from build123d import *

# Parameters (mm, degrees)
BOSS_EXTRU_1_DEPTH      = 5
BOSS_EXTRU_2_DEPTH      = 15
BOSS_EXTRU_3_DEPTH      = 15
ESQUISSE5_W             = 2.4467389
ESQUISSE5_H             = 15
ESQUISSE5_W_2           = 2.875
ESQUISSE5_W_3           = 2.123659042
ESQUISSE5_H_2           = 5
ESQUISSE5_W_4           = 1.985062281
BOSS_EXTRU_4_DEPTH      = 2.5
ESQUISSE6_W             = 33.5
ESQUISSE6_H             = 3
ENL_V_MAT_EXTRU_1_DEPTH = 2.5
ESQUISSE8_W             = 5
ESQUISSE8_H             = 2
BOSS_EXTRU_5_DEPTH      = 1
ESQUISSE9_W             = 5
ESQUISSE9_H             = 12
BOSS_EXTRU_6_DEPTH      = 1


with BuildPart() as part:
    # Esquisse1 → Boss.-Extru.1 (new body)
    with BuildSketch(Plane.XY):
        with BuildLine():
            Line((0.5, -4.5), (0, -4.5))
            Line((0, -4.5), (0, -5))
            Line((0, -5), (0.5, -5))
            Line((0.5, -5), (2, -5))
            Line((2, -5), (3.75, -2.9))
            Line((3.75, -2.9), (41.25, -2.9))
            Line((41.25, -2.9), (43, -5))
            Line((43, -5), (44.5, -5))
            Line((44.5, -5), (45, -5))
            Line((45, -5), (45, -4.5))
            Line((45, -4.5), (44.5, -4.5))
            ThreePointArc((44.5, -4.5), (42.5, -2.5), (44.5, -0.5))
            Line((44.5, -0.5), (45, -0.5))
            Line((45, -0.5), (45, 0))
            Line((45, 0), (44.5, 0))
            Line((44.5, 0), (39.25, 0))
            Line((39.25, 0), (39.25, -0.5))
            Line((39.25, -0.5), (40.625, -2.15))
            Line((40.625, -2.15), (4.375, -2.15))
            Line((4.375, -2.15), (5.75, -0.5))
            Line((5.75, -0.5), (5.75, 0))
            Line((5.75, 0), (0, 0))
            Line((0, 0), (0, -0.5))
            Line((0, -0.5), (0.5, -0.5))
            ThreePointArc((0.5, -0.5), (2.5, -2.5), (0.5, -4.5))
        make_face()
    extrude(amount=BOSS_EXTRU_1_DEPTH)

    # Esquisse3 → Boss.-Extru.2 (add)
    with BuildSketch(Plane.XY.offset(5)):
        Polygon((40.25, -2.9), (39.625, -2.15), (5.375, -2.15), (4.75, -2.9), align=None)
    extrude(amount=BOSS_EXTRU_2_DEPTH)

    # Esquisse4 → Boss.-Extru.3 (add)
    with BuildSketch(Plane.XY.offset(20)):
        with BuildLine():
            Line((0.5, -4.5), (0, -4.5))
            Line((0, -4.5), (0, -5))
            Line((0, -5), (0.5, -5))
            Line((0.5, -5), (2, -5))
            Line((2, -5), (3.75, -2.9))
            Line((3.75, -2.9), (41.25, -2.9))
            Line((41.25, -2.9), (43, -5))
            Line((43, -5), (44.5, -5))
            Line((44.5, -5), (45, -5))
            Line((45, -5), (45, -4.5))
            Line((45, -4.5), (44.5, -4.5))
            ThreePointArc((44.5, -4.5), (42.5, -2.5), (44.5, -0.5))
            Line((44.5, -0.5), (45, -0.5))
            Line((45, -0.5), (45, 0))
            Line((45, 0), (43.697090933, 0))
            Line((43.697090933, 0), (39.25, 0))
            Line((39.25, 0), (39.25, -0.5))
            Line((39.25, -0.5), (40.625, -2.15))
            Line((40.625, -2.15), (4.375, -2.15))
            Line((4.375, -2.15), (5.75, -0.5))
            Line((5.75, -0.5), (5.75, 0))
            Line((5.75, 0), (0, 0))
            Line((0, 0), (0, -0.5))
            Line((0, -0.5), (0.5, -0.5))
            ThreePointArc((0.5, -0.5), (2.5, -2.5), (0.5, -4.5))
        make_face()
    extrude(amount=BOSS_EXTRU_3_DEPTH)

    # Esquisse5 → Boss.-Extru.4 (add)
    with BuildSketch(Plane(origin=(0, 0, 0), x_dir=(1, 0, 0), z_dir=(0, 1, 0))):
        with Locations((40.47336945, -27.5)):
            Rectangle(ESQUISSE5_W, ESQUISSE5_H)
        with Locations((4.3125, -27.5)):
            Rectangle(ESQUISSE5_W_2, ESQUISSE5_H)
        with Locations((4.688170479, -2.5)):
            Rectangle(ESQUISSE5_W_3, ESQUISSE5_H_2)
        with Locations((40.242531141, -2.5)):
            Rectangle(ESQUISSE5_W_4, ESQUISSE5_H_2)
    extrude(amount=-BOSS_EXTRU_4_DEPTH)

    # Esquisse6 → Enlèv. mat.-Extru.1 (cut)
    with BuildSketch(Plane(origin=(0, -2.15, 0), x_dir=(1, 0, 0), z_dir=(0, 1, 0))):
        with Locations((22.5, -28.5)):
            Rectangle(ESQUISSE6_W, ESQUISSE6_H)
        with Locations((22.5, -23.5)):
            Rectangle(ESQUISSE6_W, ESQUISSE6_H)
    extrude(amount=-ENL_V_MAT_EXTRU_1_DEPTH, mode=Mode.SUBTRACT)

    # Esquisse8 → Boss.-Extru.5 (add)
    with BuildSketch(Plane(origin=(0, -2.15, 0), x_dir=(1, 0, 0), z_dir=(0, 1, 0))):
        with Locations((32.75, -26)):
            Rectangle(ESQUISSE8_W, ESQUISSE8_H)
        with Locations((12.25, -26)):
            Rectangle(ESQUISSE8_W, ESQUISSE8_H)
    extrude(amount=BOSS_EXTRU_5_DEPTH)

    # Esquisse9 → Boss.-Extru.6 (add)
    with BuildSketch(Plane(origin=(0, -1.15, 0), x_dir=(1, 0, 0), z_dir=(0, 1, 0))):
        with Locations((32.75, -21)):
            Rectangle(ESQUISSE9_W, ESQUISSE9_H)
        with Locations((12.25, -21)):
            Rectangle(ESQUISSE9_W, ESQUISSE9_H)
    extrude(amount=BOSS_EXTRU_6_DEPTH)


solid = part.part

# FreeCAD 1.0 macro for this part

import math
import FreeCAD as App
import Part
import Sketcher

V = App.Vector
Q = App.Units.Quantity

doc = App.newDocument("Part")
body = doc.addObject("PartDesign::Body", "Body")

# Sketch on XY plane
sketch1 = body.newObject("Sketcher::SketchObject", "Sketch")
sketch1.AttachmentSupport = (doc.getObject("XY_Plane"), [""])
sketch1.MapMode = "FlatFace"
sketch1.addGeometry([
    Part.LineSegment(V(0.5, -4.5, 0), V(0, -4.5, 0)),  # 0
    Part.LineSegment(V(0, -4.5, 0), V(0, -5, 0)),  # 1
    Part.LineSegment(V(0, -5, 0), V(2, -5, 0)),  # 2
    Part.LineSegment(V(2, -5, 0), V(3.8, -2.9, 0)),  # 3
    Part.LineSegment(V(3.8, -2.9, 0), V(41.2, -2.9, 0)),  # 4
    Part.LineSegment(V(41.2, -2.9, 0), V(43, -5, 0)),  # 5
    Part.LineSegment(V(43, -5, 0), V(45, -5, 0)),  # 6
    Part.LineSegment(V(45, -5, 0), V(45, -4.5, 0)),  # 7
    Part.LineSegment(V(45, -4.5, 0), V(44.5, -4.5, 0)),  # 8
    Part.ArcOfCircle(Part.Circle(V(44.5, -2.5, 0), V(0, 0, 1), 2), math.radians(90), math.radians(270)),  # 9
    Part.LineSegment(V(44.5, -0.5, 0), V(45, -0.5, 0)),  # 10
    Part.LineSegment(V(45, -0.5, 0), V(45, 0, 0)),  # 11
    Part.LineSegment(V(45, 0, 0), V(39.2, 0, 0)),  # 12
    Part.LineSegment(V(39.2, 0, 0), V(39.2, -0.5, 0)),  # 13
    Part.LineSegment(V(39.2, -0.5, 0), V(40.6, -2.1, 0)),  # 14
    Part.LineSegment(V(40.6, -2.1, 0), V(4.4, -2.1, 0)),  # 15
    Part.LineSegment(V(4.4, -2.1, 0), V(5.8, -0.5, 0)),  # 16
    Part.LineSegment(V(5.8, -0.5, 0), V(5.8, 0, 0)),  # 17
    Part.LineSegment(V(5.8, 0, 0), V(0, 0, 0)),  # 18
    Part.LineSegment(V(0, 0, 0), V(0, -0.5, 0)),  # 19
    Part.LineSegment(V(0, -0.5, 0), V(0.5, -0.5, 0)),  # 20
    Part.ArcOfCircle(Part.Circle(V(0.5, -2.5, 0), V(0, 0, 1), 2), math.radians(-90), math.radians(90)),  # 21
], False)
sketch1.addConstraint([
    Sketcher.Constraint("Coincident", 0, 2, 1, 1),
    Sketcher.Constraint("Coincident", 1, 2, 2, 1),
    Sketcher.Constraint("Coincident", 2, 2, 3, 1),
    Sketcher.Constraint("Coincident", 3, 2, 4, 1),
    Sketcher.Constraint("Coincident", 4, 2, 5, 1),
    Sketcher.Constraint("Coincident", 5, 2, 6, 1),
    Sketcher.Constraint("Coincident", 6, 2, 7, 1),
    Sketcher.Constraint("Coincident", 7, 2, 8, 1),
    Sketcher.Constraint("Tangent", 8, 2, 9, 2),
    Sketcher.Constraint("Tangent", 9, 1, 10, 1),
    Sketcher.Constraint("Coincident", 10, 2, 11, 1),
    Sketcher.Constraint("Coincident", 11, 2, 12, 1),
    Sketcher.Constraint("Coincident", 12, 2, 13, 1),
    Sketcher.Constraint("Coincident", 13, 2, 14, 1),
    Sketcher.Constraint("Coincident", 14, 2, 15, 1),
    Sketcher.Constraint("Coincident", 15, 2, 16, 1),
    Sketcher.Constraint("Coincident", 16, 2, 17, 1),
    Sketcher.Constraint("Coincident", 17, 2, 18, 1),
    Sketcher.Constraint("Coincident", 18, 2, 19, 1),
    Sketcher.Constraint("Coincident", 19, 2, 20, 1),
    Sketcher.Constraint("Tangent", 20, 2, 21, 2),
    Sketcher.Constraint("Tangent", 21, 1, 0, 1),
    Sketcher.Constraint("Horizontal", 0),
    Sketcher.Constraint("Vertical", 1),
    Sketcher.Constraint("Horizontal", 2),
    Sketcher.Constraint("Horizontal", 4),
    Sketcher.Constraint("Horizontal", 6),
    Sketcher.Constraint("Vertical", 7),
    Sketcher.Constraint("Horizontal", 8),
    Sketcher.Constraint("Horizontal", 10),
    Sketcher.Constraint("Vertical", 11),
    Sketcher.Constraint("Horizontal", 12),
    Sketcher.Constraint("Vertical", 13),
    Sketcher.Constraint("Horizontal", 15),
    Sketcher.Constraint("Vertical", 17),
    Sketcher.Constraint("Horizontal", 18),
    Sketcher.Constraint("Vertical", 19),
    Sketcher.Constraint("Horizontal", 20),
    Sketcher.Constraint("Coincident", 18, 2, -1, 1),
    Sketcher.Constraint("Equal", 9, 21),
    Sketcher.Constraint("PointOnObject", 0, 2, -2),
    Sketcher.Constraint("PointOnObject", 11, 2, -1),
    Sketcher.Constraint("Parallel", 5, 14),
    Sketcher.Constraint("Parallel", 3, 16),
    Sketcher.Constraint("Horizontal", 9, 3, 21, 3),
    Sketcher.Constraint("Horizontal", 2, 2, 5, 2),
    Sketcher.Constraint("Horizontal", 10, 2, 13, 2),
    Sketcher.Constraint("Horizontal", 13, 2, 16, 2),
    Sketcher.Constraint("Vertical", 7, 2, 10, 2),
    Sketcher.Constraint("Equal", 2, 6),
    Sketcher.Constraint("Equal", 0, 8),
    Sketcher.Constraint("Equal", 12, 18),
    Sketcher.Constraint("Equal", 20, 1),
    Sketcher.Constraint("Equal", 7, 11),
    Sketcher.Constraint("Equal", 3, 5),
    Sketcher.Constraint("Radius", 9, Q("2 mm")),
    Sketcher.Constraint("DistanceX", 2, 1, 2, 2, Q("2 mm")),
    Sketcher.Constraint("DistanceX", 0, 2, 0, 1, Q("0.5 mm")),
    Sketcher.Constraint("DistanceX", 4, 1, 4, 2, Q("37.5 mm")),
    Sketcher.Constraint("DistanceX", -1, 1, 5, 2, Q("43 mm")),
    Sketcher.Constraint("DistanceX", 12, 2, 4, 2, Q("2 mm")),
    Sketcher.Constraint("DistanceX", 15, 2, 15, 1, Q("36.25 mm")),
    Sketcher.Constraint("DistanceY", 3, 2, -1, 1, Q("2.9 mm")),
])
pad1 = body.newObject("PartDesign::Pad", "Pad")
pad1.Profile = sketch1
pad1.Length = 5

# Sketch on XY plane
sketch2 = body.newObject("Sketcher::SketchObject", "Sketch001")
sketch2.AttachmentSupport = (doc.getObject("XY_Plane"), [""])
sketch2.MapMode = "FlatFace"
sketch2.AttachmentOffset = App.Placement(V(0, 0, 5), App.Rotation())
sketch2.addGeometry([
    Part.LineSegment(V(40.2, -2.9, 0), V(39.6, -2.1, 0)),
    Part.LineSegment(V(39.6, -2.1, 0), V(5.4, -2.1, 0)),
    Part.LineSegment(V(5.4, -2.1, 0), V(4.8, -2.9, 0)),
    Part.LineSegment(V(4.8, -2.9, 0), V(40.2, -2.9, 0)),
], False)
sketch2.addConstraint([
    Sketcher.Constraint("Coincident", 0, 2, 1, 1),
    Sketcher.Constraint("Coincident", 1, 2, 2, 1),
    Sketcher.Constraint("Coincident", 2, 2, 3, 1),
    Sketcher.Constraint("Coincident", 3, 2, 0, 1),
    Sketcher.Constraint("Horizontal", 1),
    Sketcher.Constraint("Horizontal", 3),
    Sketcher.Constraint("Equal", 0, 2),
    Sketcher.Constraint("DistanceX", 3, 1, 3, 2, Q("35.5 mm")),
    Sketcher.Constraint("DistanceX", 1, 2, 1, 1, Q("34.25 mm")),
    Sketcher.Constraint("DistanceY", 2, 2, -1, 1, Q("2.9 mm")),
    Sketcher.Constraint("DistanceY", 0, 2, -1, 1, Q("2.15 mm")),
    Sketcher.Constraint("DistanceX", -1, 1, 2, 2, Q("4.75 mm")),
])
pad2 = body.newObject("PartDesign::Pad", "Pad001")
pad2.Profile = sketch2
pad2.Length = 15

# Sketch on XY plane
sketch3 = body.newObject("Sketcher::SketchObject", "Sketch002")
sketch3.AttachmentSupport = (doc.getObject("XY_Plane"), [""])
sketch3.MapMode = "FlatFace"
sketch3.AttachmentOffset = App.Placement(V(0, 0, 20), App.Rotation())
sketch3.addGeometry([
    Part.LineSegment(V(0.5, -4.5, 0), V(0, -4.5, 0)),  # 0
    Part.LineSegment(V(0, -4.5, 0), V(0, -5, 0)),  # 1
    Part.LineSegment(V(0, -5, 0), V(2, -5, 0)),  # 2
    Part.LineSegment(V(2, -5, 0), V(3.8, -2.9, 0)),  # 3
    Part.LineSegment(V(3.8, -2.9, 0), V(41.2, -2.9, 0)),  # 4
    Part.LineSegment(V(41.2, -2.9, 0), V(43, -5, 0)),  # 5
    Part.LineSegment(V(43, -5, 0), V(45, -5, 0)),  # 6
    Part.LineSegment(V(45, -5, 0), V(45, -4.5, 0)),  # 7
    Part.LineSegment(V(45, -4.5, 0), V(44.5, -4.5, 0)),  # 8
    Part.ArcOfCircle(Part.Circle(V(44.5, -2.5, 0), V(0, 0, 1), 2), math.radians(90), math.radians(270)),  # 9
    Part.LineSegment(V(44.5, -0.5, 0), V(45, -0.5, 0)),  # 10
    Part.LineSegment(V(45, -0.5, 0), V(45, 0, 0)),  # 11
    Part.LineSegment(V(45, 0, 0), V(39.2, 0, 0)),  # 12
    Part.LineSegment(V(39.2, 0, 0), V(39.2, -0.5, 0)),  # 13
    Part.LineSegment(V(39.2, -0.5, 0), V(40.6, -2.1, 0)),  # 14
    Part.LineSegment(V(40.6, -2.1, 0), V(4.4, -2.1, 0)),  # 15
    Part.LineSegment(V(4.4, -2.1, 0), V(5.8, -0.5, 0)),  # 16
    Part.LineSegment(V(5.8, -0.5, 0), V(5.8, 0, 0)),  # 17
    Part.LineSegment(V(5.8, 0, 0), V(0, 0, 0)),  # 18
    Part.LineSegment(V(0, 0, 0), V(0, -0.5, 0)),  # 19
    Part.LineSegment(V(0, -0.5, 0), V(0.5, -0.5, 0)),  # 20
    Part.ArcOfCircle(Part.Circle(V(0.5, -2.5, 0), V(0, 0, 1), 2), math.radians(-90), math.radians(90)),  # 21
], False)
sketch3.addConstraint([
    Sketcher.Constraint("Coincident", 0, 2, 1, 1),
    Sketcher.Constraint("Coincident", 1, 2, 2, 1),
    Sketcher.Constraint("Coincident", 2, 2, 3, 1),
    Sketcher.Constraint("Coincident", 3, 2, 4, 1),
    Sketcher.Constraint("Coincident", 4, 2, 5, 1),
    Sketcher.Constraint("Coincident", 5, 2, 6, 1),
    Sketcher.Constraint("Coincident", 6, 2, 7, 1),
    Sketcher.Constraint("Coincident", 7, 2, 8, 1),
    Sketcher.Constraint("Tangent", 8, 2, 9, 2),
    Sketcher.Constraint("Tangent", 9, 1, 10, 1),
    Sketcher.Constraint("Coincident", 10, 2, 11, 1),
    Sketcher.Constraint("Coincident", 11, 2, 12, 1),
    Sketcher.Constraint("Coincident", 12, 2, 13, 1),
    Sketcher.Constraint("Coincident", 13, 2, 14, 1),
    Sketcher.Constraint("Coincident", 14, 2, 15, 1),
    Sketcher.Constraint("Coincident", 15, 2, 16, 1),
    Sketcher.Constraint("Coincident", 16, 2, 17, 1),
    Sketcher.Constraint("Coincident", 17, 2, 18, 1),
    Sketcher.Constraint("Coincident", 18, 2, 19, 1),
    Sketcher.Constraint("Coincident", 19, 2, 20, 1),
    Sketcher.Constraint("Tangent", 20, 2, 21, 2),
    Sketcher.Constraint("Tangent", 21, 1, 0, 1),
    Sketcher.Constraint("Horizontal", 0),
    Sketcher.Constraint("Vertical", 1),
    Sketcher.Constraint("Horizontal", 2),
    Sketcher.Constraint("Horizontal", 4),
    Sketcher.Constraint("Horizontal", 6),
    Sketcher.Constraint("Vertical", 7),
    Sketcher.Constraint("Horizontal", 8),
    Sketcher.Constraint("Horizontal", 10),
    Sketcher.Constraint("Vertical", 11),
    Sketcher.Constraint("Horizontal", 12),
    Sketcher.Constraint("Vertical", 13),
    Sketcher.Constraint("Horizontal", 15),
    Sketcher.Constraint("Vertical", 17),
    Sketcher.Constraint("Horizontal", 18),
    Sketcher.Constraint("Vertical", 19),
    Sketcher.Constraint("Horizontal", 20),
    Sketcher.Constraint("Coincident", 18, 2, -1, 1),
    Sketcher.Constraint("Equal", 9, 21),
    Sketcher.Constraint("PointOnObject", 0, 2, -2),
    Sketcher.Constraint("PointOnObject", 11, 2, -1),
    Sketcher.Constraint("Parallel", 5, 14),
    Sketcher.Constraint("Parallel", 3, 16),
    Sketcher.Constraint("Horizontal", 9, 3, 21, 3),
    Sketcher.Constraint("Horizontal", 2, 2, 5, 2),
    Sketcher.Constraint("Horizontal", 10, 2, 13, 2),
    Sketcher.Constraint("Horizontal", 13, 2, 16, 2),
    Sketcher.Constraint("Vertical", 7, 2, 10, 2),
    Sketcher.Constraint("Equal", 2, 6),
    Sketcher.Constraint("Equal", 0, 8),
    Sketcher.Constraint("Equal", 12, 18),
    Sketcher.Constraint("Equal", 20, 1),
    Sketcher.Constraint("Equal", 7, 11),
    Sketcher.Constraint("Equal", 3, 5),
    Sketcher.Constraint("Radius", 9, Q("2 mm")),
    Sketcher.Constraint("DistanceX", 2, 1, 2, 2, Q("2 mm")),
    Sketcher.Constraint("DistanceX", 0, 2, 0, 1, Q("0.5 mm")),
    Sketcher.Constraint("DistanceX", 4, 1, 4, 2, Q("37.5 mm")),
    Sketcher.Constraint("DistanceX", -1, 1, 5, 2, Q("43 mm")),
    Sketcher.Constraint("DistanceX", 12, 2, 4, 2, Q("2 mm")),
    Sketcher.Constraint("DistanceX", 15, 2, 15, 1, Q("36.25 mm")),
    Sketcher.Constraint("DistanceY", 3, 2, -1, 1, Q("2.9 mm")),
])
pad3 = body.newObject("PartDesign::Pad", "Pad002")
pad3.Profile = sketch3
pad3.Length = 15

# Sketch on XZ plane
sketch4 = body.newObject("Sketcher::SketchObject", "Sketch003")
sketch4.AttachmentSupport = (doc.getObject("XZ_Plane"), [""])
sketch4.MapMode = "FlatFace"
sketch4.addGeometry([
    Part.LineSegment(V(39.2, 20, 0), V(39.2, 35, 0)),  # 0
    Part.LineSegment(V(39.2, 35, 0), V(41.7, 35, 0)),  # 1
    Part.LineSegment(V(41.7, 35, 0), V(41.7, 20, 0)),  # 2
    Part.LineSegment(V(41.7, 20, 0), V(39.2, 20, 0)),  # 3
    Part.LineSegment(V(2.9, 20, 0), V(2.9, 35, 0)),  # 4
    Part.LineSegment(V(2.9, 35, 0), V(5.8, 35, 0)),  # 5
    Part.LineSegment(V(5.8, 35, 0), V(5.8, 20, 0)),  # 6
    Part.LineSegment(V(5.8, 20, 0), V(2.9, 20, 0)),  # 7
    Part.LineSegment(V(3.6, 0, 0), V(3.6, 5, 0)),  # 8
    Part.LineSegment(V(3.6, 5, 0), V(5.8, 5, 0)),  # 9
    Part.LineSegment(V(5.8, 5, 0), V(5.8, 0, 0)),  # 10
    Part.LineSegment(V(5.8, 0, 0), V(3.6, 0, 0)),  # 11
    Part.LineSegment(V(39.3, 0, 0), V(39.3, 5, 0)),  # 12
    Part.LineSegment(V(39.3, 5, 0), V(41.2, 5, 0)),  # 13
    Part.LineSegment(V(41.2, 5, 0), V(41.2, 0, 0)),  # 14
    Part.LineSegment(V(41.2, 0, 0), V(39.3, 0, 0)),  # 15
], False)
sketch4.addConstraint([
    Sketcher.Constraint("Coincident", 0, 2, 1, 1),
    Sketcher.Constraint("Coincident", 1, 2, 2, 1),
    Sketcher.Constraint("Coincident", 2, 2, 3, 1),
    Sketcher.Constraint("Coincident", 3, 2, 0, 1),
    Sketcher.Constraint("Coincident", 4, 2, 5, 1),
    Sketcher.Constraint("Coincident", 5, 2, 6, 1),
    Sketcher.Constraint("Coincident", 6, 2, 7, 1),
    Sketcher.Constraint("Coincident", 7, 2, 4, 1),
    Sketcher.Constraint("Coincident", 8, 2, 9, 1),
    Sketcher.Constraint("Coincident", 9, 2, 10, 1),
    Sketcher.Constraint("Coincident", 10, 2, 11, 1),
    Sketcher.Constraint("Coincident", 11, 2, 8, 1),
    Sketcher.Constraint("Coincident", 12, 2, 13, 1),
    Sketcher.Constraint("Coincident", 13, 2, 14, 1),
    Sketcher.Constraint("Coincident", 14, 2, 15, 1),
    Sketcher.Constraint("Coincident", 15, 2, 12, 1),
    Sketcher.Constraint("Vertical", 0),
    Sketcher.Constraint("Horizontal", 1),
    Sketcher.Constraint("Vertical", 2),
    Sketcher.Constraint("Horizontal", 3),
    Sketcher.Constraint("Vertical", 4),
    Sketcher.Constraint("Horizontal", 5),
    Sketcher.Constraint("Vertical", 6),
    Sketcher.Constraint("Horizontal", 7),
    Sketcher.Constraint("Vertical", 8),
    Sketcher.Constraint("Horizontal", 9),
    Sketcher.Constraint("Vertical", 10),
    Sketcher.Constraint("Horizontal", 11),
    Sketcher.Constraint("Vertical", 12),
    Sketcher.Constraint("Horizontal", 13),
    Sketcher.Constraint("Vertical", 14),
    Sketcher.Constraint("Horizontal", 15),
    Sketcher.Constraint("PointOnObject", 10, 2, -1),
    Sketcher.Constraint("PointOnObject", 14, 2, -1),
    Sketcher.Constraint("Horizontal", 1, 2, 4, 2),
    Sketcher.Constraint("Horizontal", 3, 2, 6, 2),
    Sketcher.Constraint("Horizontal", 9, 2, 12, 2),
    Sketcher.Constraint("Vertical", 6, 2, 9, 2),
    Sketcher.Constraint("Vertical", 3, 2, 12, 2),
    Sketcher.Constraint("DistanceY", 0, 1, 0, 2, Q("15 mm")),
    Sketcher.Constraint("DistanceY", 8, 1, 8, 2, Q("5 mm")),
    Sketcher.Constraint("DistanceY", -1, 1, 0, 2, Q("35 mm")),
    Sketcher.Constraint("DistanceX", 5, 2, 0, 2, Q("33.5 mm")),
    Sketcher.Constraint("DistanceX", 5, 1, 5, 2, Q("2.875 mm")),
    Sketcher.Constraint("DistanceX", -1, 1, 0, 2, Q("39.25 mm")),
    Sketcher.Constraint("DistanceX", 1, 1, 1, 2, Q("2.446739 mm")),
    Sketcher.Constraint("DistanceX", 9, 1, 9, 2, Q("2.123659 mm")),
    Sketcher.Constraint("DistanceX", 13, 1, 13, 2, Q("1.985062 mm")),
])
pad4 = body.newObject("PartDesign::Pad", "Pad003")
pad4.Profile = sketch4
pad4.Length = 2.5

# Sketch on XZ plane
sketch5 = body.newObject("Sketcher::SketchObject", "Sketch004")
sketch5.AttachmentSupport = (doc.getObject("XZ_Plane"), [""])
sketch5.MapMode = "FlatFace"
sketch5.AttachmentOffset = App.Placement(V(0, 0, 2.15), App.Rotation())
sketch5.addGeometry([
    Part.LineSegment(V(5.8, 27, 0), V(5.8, 30, 0)),  # 0
    Part.LineSegment(V(5.8, 30, 0), V(39.2, 30, 0)),  # 1
    Part.LineSegment(V(39.2, 30, 0), V(39.2, 27, 0)),  # 2
    Part.LineSegment(V(39.2, 27, 0), V(5.8, 27, 0)),  # 3
    Part.LineSegment(V(5.8, 22, 0), V(5.8, 25, 0)),  # 4
    Part.LineSegment(V(5.8, 25, 0), V(39.2, 25, 0)),  # 5
    Part.LineSegment(V(39.2, 25, 0), V(39.2, 22, 0)),  # 6
    Part.LineSegment(V(39.2, 22, 0), V(5.8, 22, 0)),  # 7
], False)
sketch5.addConstraint([
    Sketcher.Constraint("Coincident", 0, 2, 1, 1),
    Sketcher.Constraint("Coincident", 1, 2, 2, 1),
    Sketcher.Constraint("Coincident", 2, 2, 3, 1),
    Sketcher.Constraint("Coincident", 3, 2, 0, 1),
    Sketcher.Constraint("Coincident", 4, 2, 5, 1),
    Sketcher.Constraint("Coincident", 5, 2, 6, 1),
    Sketcher.Constraint("Coincident", 6, 2, 7, 1),
    Sketcher.Constraint("Coincident", 7, 2, 4, 1),
    Sketcher.Constraint("Vertical", 0),
    Sketcher.Constraint("Horizontal", 1),
    Sketcher.Constraint("Vertical", 2),
    Sketcher.Constraint("Horizontal", 3),
    Sketcher.Constraint("Vertical", 4),
    Sketcher.Constraint("Horizontal", 5),
    Sketcher.Constraint("Vertical", 6),
    Sketcher.Constraint("Horizontal", 7),
    Sketcher.Constraint("Vertical", 3, 2, 4, 2),
    Sketcher.Constraint("Vertical", 2, 2, 5, 2),
    Sketcher.Constraint("Equal", 2, 4),
    Sketcher.Constraint("DistanceY", 0, 1, 0, 2, Q("3 mm")),
    Sketcher.Constraint("DistanceX", 1, 1, 1, 2, Q("33.5 mm")),
    Sketcher.Constraint("DistanceY", -1, 1, 0, 2, Q("30 mm")),
    Sketcher.Constraint("DistanceY", -1, 1, 4, 2, Q("25 mm")),
    Sketcher.Constraint("DistanceX", -1, 1, 0, 2, Q("5.75 mm")),
])
pocket1 = body.newObject("PartDesign::Pocket", "Pocket")
pocket1.Profile = sketch5
pocket1.Length = 2.5
pocket1.Reversed = True

# Sketch on XZ plane
sketch6 = body.newObject("Sketcher::SketchObject", "Sketch005")
sketch6.AttachmentSupport = (doc.getObject("XZ_Plane"), [""])
sketch6.MapMode = "FlatFace"
sketch6.AttachmentOffset = App.Placement(V(0, 0, 2.15), App.Rotation())
sketch6.addGeometry([
    Part.LineSegment(V(30.2, 25, 0), V(30.2, 27, 0)),  # 0
    Part.LineSegment(V(30.2, 27, 0), V(35.2, 27, 0)),  # 1
    Part.LineSegment(V(35.2, 27, 0), V(35.2, 25, 0)),  # 2
    Part.LineSegment(V(35.2, 25, 0), V(30.2, 25, 0)),  # 3
    Part.LineSegment(V(9.8, 25, 0), V(9.8, 27, 0)),  # 4
    Part.LineSegment(V(9.8, 27, 0), V(14.8, 27, 0)),  # 5
    Part.LineSegment(V(14.8, 27, 0), V(14.8, 25, 0)),  # 6
    Part.LineSegment(V(14.8, 25, 0), V(9.8, 25, 0)),  # 7
], False)
sketch6.addConstraint([
    Sketcher.Constraint("Coincident", 0, 2, 1, 1),
    Sketcher.Constraint("Coincident", 1, 2, 2, 1),
    Sketcher.Constraint("Coincident", 2, 2, 3, 1),
    Sketcher.Constraint("Coincident", 3, 2, 0, 1),
    Sketcher.Constraint("Coincident", 4, 2, 5, 1),
    Sketcher.Constraint("Coincident", 5, 2, 6, 1),
    Sketcher.Constraint("Coincident", 6, 2, 7, 1),
    Sketcher.Constraint("Coincident", 7, 2, 4, 1),
    Sketcher.Constraint("Vertical", 0),
    Sketcher.Constraint("Horizontal", 1),
    Sketcher.Constraint("Vertical", 2),
    Sketcher.Constraint("Horizontal", 3),
    Sketcher.Constraint("Vertical", 4),
    Sketcher.Constraint("Horizontal", 5),
    Sketcher.Constraint("Vertical", 6),
    Sketcher.Constraint("Horizontal", 7),
    Sketcher.Constraint("Horizontal", 1, 2, 4, 2),
    Sketcher.Constraint("Horizontal", 3, 2, 6, 2),
    Sketcher.Constraint("Equal", 3, 5),
    Sketcher.Constraint("DistanceX", 1, 1, 1, 2, Q("5 mm")),
    Sketcher.Constraint("DistanceY", 0, 1, 0, 2, Q("2 mm")),
    Sketcher.Constraint("DistanceY", -1, 1, 0, 2, Q("27 mm")),
    Sketcher.Constraint("DistanceX", 4, 2, 0, 2, Q("20.5 mm")),
    Sketcher.Constraint("DistanceX", -1, 1, 0, 2, Q("30.25 mm")),
])
pad5 = body.newObject("PartDesign::Pad", "Pad004")
pad5.Profile = sketch6
pad5.Length = 1
pad5.Reversed = True

# Sketch on XZ plane
sketch7 = body.newObject("Sketcher::SketchObject", "Sketch006")
sketch7.AttachmentSupport = (doc.getObject("XZ_Plane"), [""])
sketch7.MapMode = "FlatFace"
sketch7.AttachmentOffset = App.Placement(V(0, 0, 1.15), App.Rotation())
sketch7.addGeometry([
    Part.LineSegment(V(30, 15, 0), V(30, 27, 0)),  # 0
    Part.LineSegment(V(30, 27, 0), V(35, 27, 0)),  # 1
    Part.LineSegment(V(35, 27, 0), V(35, 15, 0)),  # 2
    Part.LineSegment(V(35, 15, 0), V(30, 15, 0)),  # 3
    Part.LineSegment(V(10, 15, 0), V(10, 27, 0)),  # 4
    Part.LineSegment(V(10, 27, 0), V(15, 27, 0)),  # 5
    Part.LineSegment(V(15, 27, 0), V(15, 15, 0)),  # 6
    Part.LineSegment(V(15, 15, 0), V(10, 15, 0)),  # 7
], False)
sketch7.addConstraint([
    Sketcher.Constraint("Coincident", 0, 2, 1, 1),
    Sketcher.Constraint("Coincident", 1, 2, 2, 1),
    Sketcher.Constraint("Coincident", 2, 2, 3, 1),
    Sketcher.Constraint("Coincident", 3, 2, 0, 1),
    Sketcher.Constraint("Coincident", 4, 2, 5, 1),
    Sketcher.Constraint("Coincident", 5, 2, 6, 1),
    Sketcher.Constraint("Coincident", 6, 2, 7, 1),
    Sketcher.Constraint("Coincident", 7, 2, 4, 1),
    Sketcher.Constraint("Vertical", 0),
    Sketcher.Constraint("Horizontal", 1),
    Sketcher.Constraint("Vertical", 2),
    Sketcher.Constraint("Horizontal", 3),
    Sketcher.Constraint("Vertical", 4),
    Sketcher.Constraint("Horizontal", 5),
    Sketcher.Constraint("Vertical", 6),
    Sketcher.Constraint("Horizontal", 7),
    Sketcher.Constraint("Horizontal", 1, 2, 4, 2),
    Sketcher.Constraint("Horizontal", 3, 2, 6, 2),
    Sketcher.Constraint("Equal", 3, 5),
    Sketcher.Constraint("DistanceX", 1, 1, 1, 2, Q("5 mm")),
    Sketcher.Constraint("DistanceY", 0, 1, 0, 2, Q("12 mm")),
    Sketcher.Constraint("DistanceY", -1, 1, 0, 2, Q("27 mm")),
    Sketcher.Constraint("DistanceX", 4, 2, 0, 2, Q("20.5 mm")),
    Sketcher.Constraint("DistanceX", -1, 1, 0, 2, Q("30.25 mm")),
])
pad6 = body.newObject("PartDesign::Pad", "Pad005")
pad6.Profile = sketch7
pad6.Length = 1
pad6.Reversed = True

doc.recompute()
